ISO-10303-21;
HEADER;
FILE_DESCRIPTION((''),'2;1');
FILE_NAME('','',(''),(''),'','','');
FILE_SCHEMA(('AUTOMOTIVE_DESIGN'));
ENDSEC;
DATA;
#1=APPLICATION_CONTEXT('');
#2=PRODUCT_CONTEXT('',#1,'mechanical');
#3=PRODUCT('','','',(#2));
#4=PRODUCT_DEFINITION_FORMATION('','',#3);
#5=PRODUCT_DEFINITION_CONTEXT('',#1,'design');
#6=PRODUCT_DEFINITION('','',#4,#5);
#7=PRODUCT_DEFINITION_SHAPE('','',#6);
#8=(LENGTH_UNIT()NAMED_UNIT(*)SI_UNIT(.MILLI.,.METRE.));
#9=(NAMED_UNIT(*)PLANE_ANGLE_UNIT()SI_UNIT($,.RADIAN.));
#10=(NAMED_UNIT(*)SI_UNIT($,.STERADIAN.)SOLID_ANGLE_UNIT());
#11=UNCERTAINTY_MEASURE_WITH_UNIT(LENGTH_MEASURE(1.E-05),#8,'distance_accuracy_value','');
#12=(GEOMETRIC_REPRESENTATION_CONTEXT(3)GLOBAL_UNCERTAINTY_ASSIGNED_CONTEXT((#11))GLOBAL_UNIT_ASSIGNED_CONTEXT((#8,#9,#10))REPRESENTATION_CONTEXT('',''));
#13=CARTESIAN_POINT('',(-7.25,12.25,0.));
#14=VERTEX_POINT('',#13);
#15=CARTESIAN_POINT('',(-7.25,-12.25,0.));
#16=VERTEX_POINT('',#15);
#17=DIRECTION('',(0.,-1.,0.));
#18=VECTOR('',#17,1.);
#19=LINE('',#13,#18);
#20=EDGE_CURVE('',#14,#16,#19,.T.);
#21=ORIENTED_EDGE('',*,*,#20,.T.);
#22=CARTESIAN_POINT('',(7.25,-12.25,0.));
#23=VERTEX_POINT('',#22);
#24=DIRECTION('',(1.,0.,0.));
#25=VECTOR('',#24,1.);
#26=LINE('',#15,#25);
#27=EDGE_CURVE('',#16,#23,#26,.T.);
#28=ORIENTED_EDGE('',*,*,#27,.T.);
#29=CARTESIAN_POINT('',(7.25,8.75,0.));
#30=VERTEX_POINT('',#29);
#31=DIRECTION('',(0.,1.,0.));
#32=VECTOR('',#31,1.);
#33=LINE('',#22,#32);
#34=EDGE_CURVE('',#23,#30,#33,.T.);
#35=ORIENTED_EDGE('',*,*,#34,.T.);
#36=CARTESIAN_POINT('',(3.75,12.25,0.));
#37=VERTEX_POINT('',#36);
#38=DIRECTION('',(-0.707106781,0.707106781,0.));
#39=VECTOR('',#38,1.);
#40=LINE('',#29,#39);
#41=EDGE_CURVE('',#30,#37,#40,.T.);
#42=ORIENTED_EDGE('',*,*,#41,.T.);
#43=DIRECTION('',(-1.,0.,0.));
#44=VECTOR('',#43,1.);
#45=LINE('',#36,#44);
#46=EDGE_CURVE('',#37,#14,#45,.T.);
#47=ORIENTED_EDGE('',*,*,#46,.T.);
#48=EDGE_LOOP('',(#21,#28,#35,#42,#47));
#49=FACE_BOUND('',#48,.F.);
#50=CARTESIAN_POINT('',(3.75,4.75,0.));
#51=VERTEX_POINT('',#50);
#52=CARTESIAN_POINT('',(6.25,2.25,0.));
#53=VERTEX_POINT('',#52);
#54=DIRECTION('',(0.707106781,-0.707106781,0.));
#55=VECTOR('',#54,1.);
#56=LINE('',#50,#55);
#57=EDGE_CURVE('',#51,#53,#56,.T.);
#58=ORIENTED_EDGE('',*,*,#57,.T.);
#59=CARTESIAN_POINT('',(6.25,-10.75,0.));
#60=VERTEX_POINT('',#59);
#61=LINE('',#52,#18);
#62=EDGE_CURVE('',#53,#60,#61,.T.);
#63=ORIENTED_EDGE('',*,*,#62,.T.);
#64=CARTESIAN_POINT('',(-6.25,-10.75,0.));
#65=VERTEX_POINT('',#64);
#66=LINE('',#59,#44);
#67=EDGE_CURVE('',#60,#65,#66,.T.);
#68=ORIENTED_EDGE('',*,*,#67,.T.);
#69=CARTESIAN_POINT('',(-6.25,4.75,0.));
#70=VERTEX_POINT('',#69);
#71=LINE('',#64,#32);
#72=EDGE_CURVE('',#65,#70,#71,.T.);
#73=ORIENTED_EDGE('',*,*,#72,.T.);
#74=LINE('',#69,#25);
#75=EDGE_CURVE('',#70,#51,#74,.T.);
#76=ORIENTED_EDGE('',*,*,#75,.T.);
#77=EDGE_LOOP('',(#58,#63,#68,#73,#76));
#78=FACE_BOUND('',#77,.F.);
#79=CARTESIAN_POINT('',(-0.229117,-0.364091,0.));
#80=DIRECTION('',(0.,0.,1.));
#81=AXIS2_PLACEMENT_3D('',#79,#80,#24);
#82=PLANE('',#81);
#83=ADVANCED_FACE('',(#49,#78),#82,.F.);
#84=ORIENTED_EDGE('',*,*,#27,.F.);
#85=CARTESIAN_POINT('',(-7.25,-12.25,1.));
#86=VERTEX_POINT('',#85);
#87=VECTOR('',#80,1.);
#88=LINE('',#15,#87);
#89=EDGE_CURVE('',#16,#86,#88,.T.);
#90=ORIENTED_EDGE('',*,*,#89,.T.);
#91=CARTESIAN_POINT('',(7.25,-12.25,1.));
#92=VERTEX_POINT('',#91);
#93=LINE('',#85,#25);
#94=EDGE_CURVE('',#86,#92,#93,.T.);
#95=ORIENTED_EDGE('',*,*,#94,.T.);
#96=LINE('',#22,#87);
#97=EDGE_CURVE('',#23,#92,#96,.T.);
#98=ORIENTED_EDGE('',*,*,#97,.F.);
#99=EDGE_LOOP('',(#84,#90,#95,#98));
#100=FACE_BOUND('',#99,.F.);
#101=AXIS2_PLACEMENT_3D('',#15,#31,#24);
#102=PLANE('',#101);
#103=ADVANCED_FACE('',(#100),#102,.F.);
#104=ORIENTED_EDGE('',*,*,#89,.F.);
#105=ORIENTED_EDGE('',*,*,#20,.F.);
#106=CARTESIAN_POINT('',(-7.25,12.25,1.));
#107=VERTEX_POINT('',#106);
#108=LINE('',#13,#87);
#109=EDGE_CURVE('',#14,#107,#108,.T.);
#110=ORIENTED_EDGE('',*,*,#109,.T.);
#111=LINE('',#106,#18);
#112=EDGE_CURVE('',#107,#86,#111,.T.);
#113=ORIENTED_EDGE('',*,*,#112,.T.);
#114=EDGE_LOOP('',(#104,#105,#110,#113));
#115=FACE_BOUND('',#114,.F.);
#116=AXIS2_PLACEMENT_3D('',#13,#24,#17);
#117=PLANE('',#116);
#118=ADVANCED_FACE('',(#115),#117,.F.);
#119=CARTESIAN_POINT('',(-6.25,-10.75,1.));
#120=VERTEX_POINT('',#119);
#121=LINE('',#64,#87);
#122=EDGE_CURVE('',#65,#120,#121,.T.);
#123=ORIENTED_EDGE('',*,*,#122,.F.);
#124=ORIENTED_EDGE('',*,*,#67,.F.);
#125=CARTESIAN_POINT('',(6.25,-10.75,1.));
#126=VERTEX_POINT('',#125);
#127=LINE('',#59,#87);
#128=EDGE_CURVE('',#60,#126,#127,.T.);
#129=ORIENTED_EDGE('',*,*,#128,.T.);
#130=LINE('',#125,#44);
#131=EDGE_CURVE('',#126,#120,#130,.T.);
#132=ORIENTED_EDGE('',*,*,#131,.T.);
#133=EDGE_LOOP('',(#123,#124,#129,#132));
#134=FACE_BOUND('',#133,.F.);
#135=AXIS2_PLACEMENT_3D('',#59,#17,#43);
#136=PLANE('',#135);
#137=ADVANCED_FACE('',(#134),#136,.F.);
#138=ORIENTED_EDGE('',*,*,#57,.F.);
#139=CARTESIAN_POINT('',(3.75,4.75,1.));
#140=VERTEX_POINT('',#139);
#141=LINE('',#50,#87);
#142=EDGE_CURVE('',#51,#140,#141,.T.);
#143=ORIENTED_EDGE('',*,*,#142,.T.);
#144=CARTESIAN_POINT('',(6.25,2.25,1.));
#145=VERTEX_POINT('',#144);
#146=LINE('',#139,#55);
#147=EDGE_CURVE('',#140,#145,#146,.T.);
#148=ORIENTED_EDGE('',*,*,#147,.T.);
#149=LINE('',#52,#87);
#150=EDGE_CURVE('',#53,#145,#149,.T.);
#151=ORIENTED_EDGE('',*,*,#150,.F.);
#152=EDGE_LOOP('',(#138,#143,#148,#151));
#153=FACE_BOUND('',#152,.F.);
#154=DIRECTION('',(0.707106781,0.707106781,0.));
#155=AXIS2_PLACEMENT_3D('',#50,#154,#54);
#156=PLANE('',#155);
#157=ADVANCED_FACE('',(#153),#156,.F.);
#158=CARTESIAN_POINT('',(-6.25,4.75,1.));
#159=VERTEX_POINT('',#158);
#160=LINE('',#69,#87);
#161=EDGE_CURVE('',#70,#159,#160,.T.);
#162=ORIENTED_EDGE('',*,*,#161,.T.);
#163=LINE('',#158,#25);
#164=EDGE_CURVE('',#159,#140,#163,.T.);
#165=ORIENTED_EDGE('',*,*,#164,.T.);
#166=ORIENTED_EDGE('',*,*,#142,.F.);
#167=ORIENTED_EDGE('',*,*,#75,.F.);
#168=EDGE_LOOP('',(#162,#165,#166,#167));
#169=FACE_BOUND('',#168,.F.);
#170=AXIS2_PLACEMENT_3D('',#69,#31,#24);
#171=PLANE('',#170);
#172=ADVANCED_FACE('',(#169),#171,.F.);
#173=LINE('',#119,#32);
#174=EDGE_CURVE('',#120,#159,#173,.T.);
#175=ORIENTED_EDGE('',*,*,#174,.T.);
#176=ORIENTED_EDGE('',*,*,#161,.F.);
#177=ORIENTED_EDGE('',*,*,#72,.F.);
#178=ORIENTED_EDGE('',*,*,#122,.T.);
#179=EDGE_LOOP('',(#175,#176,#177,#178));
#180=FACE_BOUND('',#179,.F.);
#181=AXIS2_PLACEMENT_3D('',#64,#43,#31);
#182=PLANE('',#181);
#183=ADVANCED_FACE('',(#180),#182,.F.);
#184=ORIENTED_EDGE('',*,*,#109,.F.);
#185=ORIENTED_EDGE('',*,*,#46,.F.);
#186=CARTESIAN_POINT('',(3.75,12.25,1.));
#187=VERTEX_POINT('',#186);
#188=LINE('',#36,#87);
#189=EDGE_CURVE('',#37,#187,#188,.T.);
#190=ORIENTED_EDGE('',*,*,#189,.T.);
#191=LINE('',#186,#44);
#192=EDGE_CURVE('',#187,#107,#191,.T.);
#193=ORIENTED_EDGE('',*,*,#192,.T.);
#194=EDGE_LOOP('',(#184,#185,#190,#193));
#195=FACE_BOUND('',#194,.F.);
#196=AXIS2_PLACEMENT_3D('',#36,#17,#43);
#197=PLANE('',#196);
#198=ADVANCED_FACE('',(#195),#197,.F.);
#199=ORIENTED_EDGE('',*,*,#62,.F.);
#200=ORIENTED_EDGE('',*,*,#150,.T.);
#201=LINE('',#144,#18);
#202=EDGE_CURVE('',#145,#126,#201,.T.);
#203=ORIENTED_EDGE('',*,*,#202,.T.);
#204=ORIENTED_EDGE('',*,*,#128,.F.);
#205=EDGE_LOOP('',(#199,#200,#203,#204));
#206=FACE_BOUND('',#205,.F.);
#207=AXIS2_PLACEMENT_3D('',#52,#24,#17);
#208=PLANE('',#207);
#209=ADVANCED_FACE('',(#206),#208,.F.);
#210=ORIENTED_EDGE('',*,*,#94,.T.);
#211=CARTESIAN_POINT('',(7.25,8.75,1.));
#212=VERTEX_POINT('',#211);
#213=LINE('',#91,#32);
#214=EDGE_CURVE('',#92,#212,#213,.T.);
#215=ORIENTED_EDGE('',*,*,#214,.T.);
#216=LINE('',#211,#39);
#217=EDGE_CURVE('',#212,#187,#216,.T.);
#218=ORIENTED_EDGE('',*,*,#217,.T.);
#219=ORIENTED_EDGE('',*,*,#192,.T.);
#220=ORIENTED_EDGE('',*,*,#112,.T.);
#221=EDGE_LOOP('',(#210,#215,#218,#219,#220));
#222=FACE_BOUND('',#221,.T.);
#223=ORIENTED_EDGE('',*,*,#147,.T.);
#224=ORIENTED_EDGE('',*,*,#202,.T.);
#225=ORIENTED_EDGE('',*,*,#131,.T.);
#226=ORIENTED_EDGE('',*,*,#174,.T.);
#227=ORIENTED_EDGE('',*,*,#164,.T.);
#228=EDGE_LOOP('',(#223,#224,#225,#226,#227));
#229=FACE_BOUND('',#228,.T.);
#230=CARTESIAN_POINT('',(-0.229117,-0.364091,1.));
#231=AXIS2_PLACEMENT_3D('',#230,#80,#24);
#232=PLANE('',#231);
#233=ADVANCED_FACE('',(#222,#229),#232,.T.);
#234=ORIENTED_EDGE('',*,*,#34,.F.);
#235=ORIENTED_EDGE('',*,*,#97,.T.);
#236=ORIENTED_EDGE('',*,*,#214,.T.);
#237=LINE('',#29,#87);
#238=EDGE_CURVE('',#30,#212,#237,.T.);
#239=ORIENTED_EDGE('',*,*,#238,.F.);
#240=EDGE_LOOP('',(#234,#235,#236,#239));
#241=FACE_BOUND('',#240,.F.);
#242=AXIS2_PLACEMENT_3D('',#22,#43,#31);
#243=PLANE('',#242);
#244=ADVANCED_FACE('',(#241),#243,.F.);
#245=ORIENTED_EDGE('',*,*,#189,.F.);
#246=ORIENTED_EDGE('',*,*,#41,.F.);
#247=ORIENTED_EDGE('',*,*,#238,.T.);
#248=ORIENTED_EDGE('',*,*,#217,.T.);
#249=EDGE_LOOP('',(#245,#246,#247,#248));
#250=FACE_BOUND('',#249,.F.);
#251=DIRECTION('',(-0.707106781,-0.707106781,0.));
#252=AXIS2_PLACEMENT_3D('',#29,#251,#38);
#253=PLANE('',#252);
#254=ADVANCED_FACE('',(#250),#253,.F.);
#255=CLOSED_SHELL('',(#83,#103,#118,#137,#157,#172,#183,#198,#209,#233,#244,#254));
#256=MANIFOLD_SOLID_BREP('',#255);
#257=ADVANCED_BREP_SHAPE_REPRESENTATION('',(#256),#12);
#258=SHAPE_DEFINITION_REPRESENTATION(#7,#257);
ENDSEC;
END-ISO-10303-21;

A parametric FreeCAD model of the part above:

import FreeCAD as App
import Part
import Sketcher

V = App.Vector
Q = App.Units.Quantity


def add_polygon(sketch, points):
    """Adds a closed chain of lines whose ends are joined by coincident constraints."""
    first, n = sketch.GeometryCount, len(points)
    for a, b in zip(points, points[1:] + points[:1]):
        sketch.addGeometry(Part.LineSegment(App.Vector(*a, 0), App.Vector(*b, 0)), False)
    for i in range(n):
        sketch.addConstraint(Sketcher.Constraint("Coincident", first + i, 2, first + (i + 1) % n, 1))

doc = App.newDocument("Part")
body = doc.addObject("PartDesign::Body", "Body")

sketch1 = body.newObject("Sketcher::SketchObject", "Sketch")
sketch1.AttachmentSupport = (doc.getObject("XY_Plane"), [""])
sketch1.MapMode = "FlatFace"
add_polygon(sketch1, [(-7.2, -12.2), (7.2, -12.2), (7.2, 8.8), (3.8, 12.2), (-7.2, 12.2)])
add_polygon(sketch1, [(3.8, 4.8), (6.2, 2.2), (6.2, -10.8), (-6.2, -10.8), (-6.2, 4.8)])
sketch1.addConstraint([
    Sketcher.Constraint("Horizontal", 0),
    Sketcher.Constraint("Vertical", 1),
    Sketcher.Constraint("Horizontal", 3),
    Sketcher.Constraint("Vertical", 4),
    Sketcher.Constraint("Vertical", 6),
    Sketcher.Constraint("Horizontal", 7),
    Sketcher.Constraint("Vertical", 8),
    Sketcher.Constraint("Horizontal", 9),
    Sketcher.Constraint("Symmetric", 0, 2, 3, 2, -1, 1),
    Sketcher.Constraint("Parallel", 2, 5),
    Sketcher.Constraint("Vertical", 2, 2, 9, 2),
    Sketcher.Constraint("DistanceX", 3, 2, 3, 1, 11.0),
    Sketcher.Constraint("DistanceX", 9, 1, 9, 2, 10.0),
    Sketcher.Constraint("DistanceY", 1, 1, 1, 2, 21.0),
    Sketcher.Constraint("DistanceY", 6, 2, 6, 1, 13.0),
    Sketcher.Constraint("Angle", 2, Q("135 deg")),
    Sketcher.Constraint("DistanceX", 0, 1, 0, 2, 14.5),
    Sketcher.Constraint("DistanceX", 7, 2, 7, 1, 12.5),
    Sketcher.Constraint("DistanceY", 5, 2, 2, 2, 10.0),
])
pad1 = body.newObject("PartDesign::Pad", "Pad")
pad1.Profile = sketch1
pad1.Length = 1

doc.recompute()
